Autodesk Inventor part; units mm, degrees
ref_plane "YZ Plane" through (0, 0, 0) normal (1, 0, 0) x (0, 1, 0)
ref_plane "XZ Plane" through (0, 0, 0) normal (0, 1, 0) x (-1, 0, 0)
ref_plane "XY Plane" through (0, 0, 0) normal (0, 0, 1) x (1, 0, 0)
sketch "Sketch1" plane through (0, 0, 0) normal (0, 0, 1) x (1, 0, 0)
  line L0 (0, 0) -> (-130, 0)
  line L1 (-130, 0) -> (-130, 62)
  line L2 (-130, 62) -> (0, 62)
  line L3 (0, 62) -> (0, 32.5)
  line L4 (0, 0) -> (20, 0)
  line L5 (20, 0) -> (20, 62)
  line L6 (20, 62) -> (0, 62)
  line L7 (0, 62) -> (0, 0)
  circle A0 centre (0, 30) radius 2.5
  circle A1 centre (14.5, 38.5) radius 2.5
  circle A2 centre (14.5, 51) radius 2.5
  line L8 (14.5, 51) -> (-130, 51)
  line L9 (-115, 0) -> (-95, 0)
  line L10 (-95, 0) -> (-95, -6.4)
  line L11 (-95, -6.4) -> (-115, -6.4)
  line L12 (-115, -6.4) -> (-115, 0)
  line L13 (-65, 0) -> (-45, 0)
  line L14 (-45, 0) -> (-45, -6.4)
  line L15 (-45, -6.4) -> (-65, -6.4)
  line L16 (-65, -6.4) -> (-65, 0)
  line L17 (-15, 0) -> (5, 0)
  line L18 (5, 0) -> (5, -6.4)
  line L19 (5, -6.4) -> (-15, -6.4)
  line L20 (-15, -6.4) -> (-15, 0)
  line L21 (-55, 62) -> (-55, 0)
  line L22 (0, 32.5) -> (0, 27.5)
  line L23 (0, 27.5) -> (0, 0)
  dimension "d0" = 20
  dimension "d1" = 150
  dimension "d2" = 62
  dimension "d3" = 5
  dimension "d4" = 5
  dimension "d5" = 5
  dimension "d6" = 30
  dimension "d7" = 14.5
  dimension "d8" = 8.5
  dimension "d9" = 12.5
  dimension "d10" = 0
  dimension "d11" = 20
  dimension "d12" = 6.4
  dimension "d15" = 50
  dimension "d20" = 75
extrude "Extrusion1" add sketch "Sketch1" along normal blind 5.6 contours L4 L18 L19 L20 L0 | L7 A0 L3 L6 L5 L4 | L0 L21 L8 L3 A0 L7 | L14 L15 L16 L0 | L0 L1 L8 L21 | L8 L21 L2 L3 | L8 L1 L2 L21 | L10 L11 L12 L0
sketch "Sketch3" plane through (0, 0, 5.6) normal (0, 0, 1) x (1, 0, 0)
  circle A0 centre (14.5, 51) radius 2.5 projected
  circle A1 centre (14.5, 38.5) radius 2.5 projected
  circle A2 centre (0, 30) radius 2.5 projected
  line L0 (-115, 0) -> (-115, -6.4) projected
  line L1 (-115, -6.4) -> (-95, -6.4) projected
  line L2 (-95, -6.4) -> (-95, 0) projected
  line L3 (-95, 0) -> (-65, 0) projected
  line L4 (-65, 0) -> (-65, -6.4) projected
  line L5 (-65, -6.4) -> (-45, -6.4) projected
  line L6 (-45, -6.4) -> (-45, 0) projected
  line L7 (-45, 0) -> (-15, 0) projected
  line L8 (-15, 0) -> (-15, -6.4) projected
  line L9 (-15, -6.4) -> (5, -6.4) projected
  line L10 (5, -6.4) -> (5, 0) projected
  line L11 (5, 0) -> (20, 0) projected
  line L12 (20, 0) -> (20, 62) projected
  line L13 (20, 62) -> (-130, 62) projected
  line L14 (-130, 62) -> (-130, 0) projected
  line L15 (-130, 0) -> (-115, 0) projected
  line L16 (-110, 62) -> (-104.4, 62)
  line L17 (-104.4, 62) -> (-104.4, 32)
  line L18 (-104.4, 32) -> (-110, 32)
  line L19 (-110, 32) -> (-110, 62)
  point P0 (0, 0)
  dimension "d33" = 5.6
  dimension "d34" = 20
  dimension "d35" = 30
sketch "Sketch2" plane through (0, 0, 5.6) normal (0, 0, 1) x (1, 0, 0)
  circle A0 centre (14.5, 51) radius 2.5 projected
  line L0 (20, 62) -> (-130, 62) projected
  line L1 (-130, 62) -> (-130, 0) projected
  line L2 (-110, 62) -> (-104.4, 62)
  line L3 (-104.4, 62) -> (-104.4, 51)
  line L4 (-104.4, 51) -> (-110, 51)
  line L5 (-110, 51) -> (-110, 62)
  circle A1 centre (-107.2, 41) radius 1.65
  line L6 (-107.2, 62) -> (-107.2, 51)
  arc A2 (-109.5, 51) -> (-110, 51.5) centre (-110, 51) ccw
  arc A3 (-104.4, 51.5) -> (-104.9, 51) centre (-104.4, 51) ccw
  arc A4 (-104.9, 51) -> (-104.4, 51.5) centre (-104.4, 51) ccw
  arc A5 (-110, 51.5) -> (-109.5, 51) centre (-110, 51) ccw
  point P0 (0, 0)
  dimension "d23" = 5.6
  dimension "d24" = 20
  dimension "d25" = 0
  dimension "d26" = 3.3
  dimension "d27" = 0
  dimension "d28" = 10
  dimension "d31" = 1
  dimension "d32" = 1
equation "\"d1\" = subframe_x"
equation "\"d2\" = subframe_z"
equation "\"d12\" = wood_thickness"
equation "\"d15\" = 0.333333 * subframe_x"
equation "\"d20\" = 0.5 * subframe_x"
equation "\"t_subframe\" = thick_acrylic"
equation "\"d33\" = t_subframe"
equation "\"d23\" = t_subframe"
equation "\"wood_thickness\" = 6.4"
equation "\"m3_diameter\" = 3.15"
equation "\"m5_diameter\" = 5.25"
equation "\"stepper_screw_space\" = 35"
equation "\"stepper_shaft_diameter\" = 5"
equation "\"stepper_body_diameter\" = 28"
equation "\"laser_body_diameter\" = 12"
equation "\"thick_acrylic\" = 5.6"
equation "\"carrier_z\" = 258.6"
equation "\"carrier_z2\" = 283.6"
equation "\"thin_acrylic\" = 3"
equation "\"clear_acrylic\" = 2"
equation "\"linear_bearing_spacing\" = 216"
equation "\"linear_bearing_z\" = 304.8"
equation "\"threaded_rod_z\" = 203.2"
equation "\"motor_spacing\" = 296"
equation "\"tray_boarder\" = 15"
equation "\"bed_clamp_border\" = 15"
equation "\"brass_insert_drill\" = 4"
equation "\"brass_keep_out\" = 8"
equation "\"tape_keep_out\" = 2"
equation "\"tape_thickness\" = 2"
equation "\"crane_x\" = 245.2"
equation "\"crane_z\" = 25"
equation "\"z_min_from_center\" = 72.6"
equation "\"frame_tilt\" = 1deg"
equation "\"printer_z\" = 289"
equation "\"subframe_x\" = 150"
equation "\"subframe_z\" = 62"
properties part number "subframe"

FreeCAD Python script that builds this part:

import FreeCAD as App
import Part
import Sketcher

doc = App.newDocument("Part")
body = doc.addObject("PartDesign::Body", "Body")

# Sketch on XY plane
sketch1 = doc.addObject("Sketcher::SketchObject", "Sketch")
body.addObject(sketch1)
sketch1.AttachmentSupport = (doc.XY_Plane, [""])
sketch1.MapMode = "FlatFace"
sketch1.addGeometry(Part.LineSegment(App.Vector(5, -6.4, 0), App.Vector(5, 0, 0)), False)
sketch1.addGeometry(Part.LineSegment(App.Vector(5, 0, 0), App.Vector(20, 0, 0)), False)
sketch1.addGeometry(Part.LineSegment(App.Vector(20, 0, 0), App.Vector(20, 62, 0)), False)
sketch1.addGeometry(Part.LineSegment(App.Vector(20, 62, 0), App.Vector(-130, 62, 0)), False)
sketch1.addGeometry(Part.LineSegment(App.Vector(-130, 62, 0), App.Vector(-130, 0, 0)), False)
sketch1.addGeometry(Part.LineSegment(App.Vector(-130, 0, 0), App.Vector(-115, 0, 0)), False)
sketch1.addGeometry(Part.LineSegment(App.Vector(-115, 0, 0), App.Vector(-115, -6.4, 0)), False)
sketch1.addGeometry(Part.LineSegment(App.Vector(-115, -6.4, 0), App.Vector(-95, -6.4, 0)), False)
sketch1.addGeometry(Part.LineSegment(App.Vector(-95, -6.4, 0), App.Vector(-95, 0, 0)), False)
sketch1.addGeometry(Part.LineSegment(App.Vector(-95, 0, 0), App.Vector(-65, 0, 0)), False)
sketch1.addGeometry(Part.LineSegment(App.Vector(-65, 0, 0), App.Vector(-65, -6.4, 0)), False)
sketch1.addGeometry(Part.LineSegment(App.Vector(-65, -6.4, 0), App.Vector(-45, -6.4, 0)), False)
sketch1.addGeometry(Part.LineSegment(App.Vector(-45, -6.4, 0), App.Vector(-45, 0, 0)), False)
sketch1.addGeometry(Part.LineSegment(App.Vector(-45, 0, 0), App.Vector(-15, 0, 0)), False)
sketch1.addGeometry(Part.LineSegment(App.Vector(-15, 0, 0), App.Vector(-15, -6.4, 0)), False)
sketch1.addGeometry(Part.LineSegment(App.Vector(-15, -6.4, 0), App.Vector(5, -6.4, 0)), False)
sketch1.addGeometry(Part.Circle(App.Vector(0, 30, 0), App.Vector(0, 0, 1), 2.5), False)
sketch1.addGeometry(Part.Circle(App.Vector(14.5, 38.5, 0), App.Vector(0, 0, 1), 2.5), False)
sketch1.addGeometry(Part.Circle(App.Vector(14.5, 51, 0), App.Vector(0, 0, 1), 2.5), False)
sketch1.addConstraint(Sketcher.Constraint("Coincident", 0, 2, 1, 1))
sketch1.addConstraint(Sketcher.Constraint("Coincident", 1, 2, 2, 1))
sketch1.addConstraint(Sketcher.Constraint("Coincident", 2, 2, 3, 1))
sketch1.addConstraint(Sketcher.Constraint("Coincident", 3, 2, 4, 1))
sketch1.addConstraint(Sketcher.Constraint("Coincident", 4, 2, 5, 1))
sketch1.addConstraint(Sketcher.Constraint("Coincident", 5, 2, 6, 1))
sketch1.addConstraint(Sketcher.Constraint("Coincident", 6, 2, 7, 1))
sketch1.addConstraint(Sketcher.Constraint("Coincident", 7, 2, 8, 1))
sketch1.addConstraint(Sketcher.Constraint("Coincident", 8, 2, 9, 1))
sketch1.addConstraint(Sketcher.Constraint("Coincident", 9, 2, 10, 1))
sketch1.addConstraint(Sketcher.Constraint("Coincident", 10, 2, 11, 1))
sketch1.addConstraint(Sketcher.Constraint("Coincident", 11, 2, 12, 1))
sketch1.addConstraint(Sketcher.Constraint("Coincident", 12, 2, 13, 1))
sketch1.addConstraint(Sketcher.Constraint("Coincident", 13, 2, 14, 1))
sketch1.addConstraint(Sketcher.Constraint("Coincident", 14, 2, 15, 1))
sketch1.addConstraint(Sketcher.Constraint("Coincident", 15, 2, 0, 1))
sketch1.addConstraint(Sketcher.Constraint("Vertical", 0))
sketch1.addConstraint(Sketcher.Constraint("Horizontal", 1))
sketch1.addConstraint(Sketcher.Constraint("Vertical", 2))
sketch1.addConstraint(Sketcher.Constraint("Horizontal", 3))
sketch1.addConstraint(Sketcher.Constraint("Vertical", 4))
sketch1.addConstraint(Sketcher.Constraint("Horizontal", 5))
sketch1.addConstraint(Sketcher.Constraint("Vertical", 6))
sketch1.addConstraint(Sketcher.Constraint("Horizontal", 7))
sketch1.addConstraint(Sketcher.Constraint("Vertical", 8))
sketch1.addConstraint(Sketcher.Constraint("Horizontal", 9))
sketch1.addConstraint(Sketcher.Constraint("Vertical", 10))
sketch1.addConstraint(Sketcher.Constraint("Horizontal", 11))
sketch1.addConstraint(Sketcher.Constraint("Vertical", 12))
sketch1.addConstraint(Sketcher.Constraint("Horizontal", 13))
sketch1.addConstraint(Sketcher.Constraint("Vertical", 14))
sketch1.addConstraint(Sketcher.Constraint("Horizontal", 15))
sketch1.addConstraint(Sketcher.Constraint("Equal", 16, 17))
sketch1.addConstraint(Sketcher.Constraint("Equal", 17, 18))
sketch1.addConstraint(Sketcher.Constraint("PointOnObject", 16, 3, -2))
sketch1.addConstraint(Sketcher.Constraint("PointOnObject", 0, 2, -1))
sketch1.addConstraint(Sketcher.Constraint("PointOnObject", 4, 2, -1))
sketch1.addConstraint(Sketcher.Constraint("PointOnObject", 8, 2, -1))
sketch1.addConstraint(Sketcher.Constraint("PointOnObject", 12, 2, -1))
sketch1.addConstraint(Sketcher.Constraint("Horizontal", 7, 2, 10, 2))
sketch1.addConstraint(Sketcher.Constraint("Horizontal", 11, 2, 14, 2))
sketch1.addConstraint(Sketcher.Constraint("Vertical", 17, 3, 18, 3))
sketch1.addConstraint(Sketcher.Constraint("Equal", 1, 5))
sketch1.addConstraint(Sketcher.Constraint("Equal", 7, 11))
sketch1.addConstraint(Sketcher.Constraint("Equal", 9, 13))
sketch1.addConstraint(Sketcher.Constraint("Equal", 11, 15))
sketch1.addConstraint(Sketcher.Constraint("Diameter", 16, 5.0))
sketch1.addConstraint(Sketcher.Constraint("DistanceX", 3, 2, 3, 1, 150.0))
sketch1.addConstraint(Sketcher.Constraint("DistanceX", 7, 1, 7, 2, 20.0))
sketch1.addConstraint(Sketcher.Constraint("DistanceX", 9, 1, 9, 2, 30.0))
sketch1.addConstraint(Sketcher.Constraint("DistanceY", 2, 1, 2, 2, 62.0))
sketch1.addConstraint(Sketcher.Constraint("DistanceY", 0, 1, 0, 2, 6.4))
sketch1.addConstraint(Sketcher.Constraint("DistanceY", -1, 1, 16, 3, 30.0))
sketch1.addConstraint(Sketcher.Constraint("DistanceX", -1, 1, 0, 2, 5.0))
sketch1.addConstraint(Sketcher.Constraint("DistanceX", -1, 1, 17, 3, 14.5))
sketch1.addConstraint(Sketcher.Constraint("DistanceY", 16, 3, 17, 3, 8.5))
sketch1.addConstraint(Sketcher.Constraint("DistanceY", 17, 3, 18, 3, 12.5))
pad1 = doc.addObject("PartDesign::Pad", "Pad")
body.addObject(pad1)
pad1.Profile = sketch1
pad1.Length = 5.6

doc.recompute()
